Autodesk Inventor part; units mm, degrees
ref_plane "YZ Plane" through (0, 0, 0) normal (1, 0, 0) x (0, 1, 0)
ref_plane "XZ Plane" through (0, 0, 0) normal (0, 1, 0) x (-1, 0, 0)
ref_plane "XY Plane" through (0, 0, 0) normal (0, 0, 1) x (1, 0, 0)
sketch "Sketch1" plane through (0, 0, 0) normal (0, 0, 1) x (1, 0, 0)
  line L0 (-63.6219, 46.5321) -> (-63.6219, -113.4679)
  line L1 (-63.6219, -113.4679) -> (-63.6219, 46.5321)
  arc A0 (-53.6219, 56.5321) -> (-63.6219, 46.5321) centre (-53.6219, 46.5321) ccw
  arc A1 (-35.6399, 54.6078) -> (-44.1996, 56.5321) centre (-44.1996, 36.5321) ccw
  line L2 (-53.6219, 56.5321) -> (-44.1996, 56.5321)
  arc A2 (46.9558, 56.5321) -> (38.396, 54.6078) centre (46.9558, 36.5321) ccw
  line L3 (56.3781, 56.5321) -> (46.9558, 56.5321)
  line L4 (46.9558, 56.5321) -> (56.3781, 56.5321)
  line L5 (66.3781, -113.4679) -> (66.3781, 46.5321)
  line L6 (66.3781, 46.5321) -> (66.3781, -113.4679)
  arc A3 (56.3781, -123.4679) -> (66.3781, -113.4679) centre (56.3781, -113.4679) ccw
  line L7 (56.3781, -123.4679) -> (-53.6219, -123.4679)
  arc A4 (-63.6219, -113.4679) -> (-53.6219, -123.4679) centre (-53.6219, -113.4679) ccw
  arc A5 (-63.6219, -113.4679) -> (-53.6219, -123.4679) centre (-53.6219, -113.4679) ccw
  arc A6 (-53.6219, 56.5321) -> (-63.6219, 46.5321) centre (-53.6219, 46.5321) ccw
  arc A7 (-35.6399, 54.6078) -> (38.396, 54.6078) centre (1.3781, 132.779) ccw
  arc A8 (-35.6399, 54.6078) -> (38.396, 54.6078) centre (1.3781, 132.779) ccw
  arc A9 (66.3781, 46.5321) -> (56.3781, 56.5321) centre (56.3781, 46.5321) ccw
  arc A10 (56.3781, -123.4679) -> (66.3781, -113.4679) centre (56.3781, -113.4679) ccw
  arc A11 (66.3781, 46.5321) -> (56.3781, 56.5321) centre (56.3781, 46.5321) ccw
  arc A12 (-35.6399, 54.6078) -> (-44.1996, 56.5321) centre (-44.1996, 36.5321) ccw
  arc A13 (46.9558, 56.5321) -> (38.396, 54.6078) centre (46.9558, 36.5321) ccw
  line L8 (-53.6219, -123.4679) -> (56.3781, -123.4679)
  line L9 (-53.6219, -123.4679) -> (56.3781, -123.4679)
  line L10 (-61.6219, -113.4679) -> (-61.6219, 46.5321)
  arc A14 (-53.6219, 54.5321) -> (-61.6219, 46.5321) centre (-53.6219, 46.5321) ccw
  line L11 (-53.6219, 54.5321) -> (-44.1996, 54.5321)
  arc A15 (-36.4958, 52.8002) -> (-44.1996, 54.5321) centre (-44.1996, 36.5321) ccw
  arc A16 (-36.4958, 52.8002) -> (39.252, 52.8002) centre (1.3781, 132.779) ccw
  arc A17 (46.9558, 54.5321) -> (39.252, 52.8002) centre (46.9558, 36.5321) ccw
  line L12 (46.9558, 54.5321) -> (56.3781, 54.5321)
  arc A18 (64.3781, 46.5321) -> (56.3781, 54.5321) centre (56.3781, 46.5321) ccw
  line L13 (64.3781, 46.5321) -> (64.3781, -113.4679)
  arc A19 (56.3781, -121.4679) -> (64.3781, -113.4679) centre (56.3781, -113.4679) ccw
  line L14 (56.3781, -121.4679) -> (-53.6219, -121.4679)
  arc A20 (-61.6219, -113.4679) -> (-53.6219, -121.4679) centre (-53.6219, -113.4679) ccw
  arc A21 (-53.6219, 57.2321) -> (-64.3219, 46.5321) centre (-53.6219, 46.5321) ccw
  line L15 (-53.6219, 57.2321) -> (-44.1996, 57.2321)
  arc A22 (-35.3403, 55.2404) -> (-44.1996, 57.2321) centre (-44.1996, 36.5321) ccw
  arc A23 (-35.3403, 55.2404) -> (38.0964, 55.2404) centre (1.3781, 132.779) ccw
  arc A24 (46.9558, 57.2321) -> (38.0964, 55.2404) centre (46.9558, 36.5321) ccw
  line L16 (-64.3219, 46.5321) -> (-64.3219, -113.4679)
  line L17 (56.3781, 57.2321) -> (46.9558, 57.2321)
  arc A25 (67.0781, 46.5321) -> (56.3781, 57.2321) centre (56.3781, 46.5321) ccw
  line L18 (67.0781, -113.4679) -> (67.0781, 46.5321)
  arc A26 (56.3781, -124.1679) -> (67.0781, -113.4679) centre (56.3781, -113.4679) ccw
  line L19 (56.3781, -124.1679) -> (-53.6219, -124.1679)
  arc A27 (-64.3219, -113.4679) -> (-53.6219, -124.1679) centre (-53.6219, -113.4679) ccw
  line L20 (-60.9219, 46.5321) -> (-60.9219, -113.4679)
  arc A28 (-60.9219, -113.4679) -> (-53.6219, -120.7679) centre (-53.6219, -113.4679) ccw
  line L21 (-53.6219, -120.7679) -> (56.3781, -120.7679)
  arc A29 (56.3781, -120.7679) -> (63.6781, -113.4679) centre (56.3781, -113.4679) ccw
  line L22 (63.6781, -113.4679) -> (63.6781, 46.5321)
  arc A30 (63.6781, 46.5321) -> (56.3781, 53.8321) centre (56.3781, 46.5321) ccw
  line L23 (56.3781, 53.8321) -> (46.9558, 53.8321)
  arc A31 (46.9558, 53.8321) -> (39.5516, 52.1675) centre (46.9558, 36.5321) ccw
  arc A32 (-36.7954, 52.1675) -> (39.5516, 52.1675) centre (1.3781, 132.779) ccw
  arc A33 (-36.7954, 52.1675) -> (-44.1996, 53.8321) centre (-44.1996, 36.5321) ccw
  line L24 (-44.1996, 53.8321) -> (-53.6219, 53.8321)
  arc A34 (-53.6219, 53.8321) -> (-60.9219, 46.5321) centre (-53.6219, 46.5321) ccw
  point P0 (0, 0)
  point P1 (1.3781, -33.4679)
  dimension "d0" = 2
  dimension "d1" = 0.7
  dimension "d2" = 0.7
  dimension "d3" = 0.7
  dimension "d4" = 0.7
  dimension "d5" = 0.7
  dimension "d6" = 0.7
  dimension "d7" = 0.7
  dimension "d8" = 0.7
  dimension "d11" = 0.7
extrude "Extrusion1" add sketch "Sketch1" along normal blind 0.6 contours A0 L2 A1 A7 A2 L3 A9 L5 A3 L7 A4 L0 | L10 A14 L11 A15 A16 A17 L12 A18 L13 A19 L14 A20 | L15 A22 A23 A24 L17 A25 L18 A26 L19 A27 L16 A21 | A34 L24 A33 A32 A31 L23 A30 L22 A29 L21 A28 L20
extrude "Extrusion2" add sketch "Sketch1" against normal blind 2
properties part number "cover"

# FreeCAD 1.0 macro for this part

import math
import FreeCAD as App
import Part
import Sketcher
from FreeCAD import Vector
Q = App.Units.Quantity

doc = App.newDocument("Part")
body = doc.addObject("PartDesign::Body", "Body")

sketch1 = doc.addObject("Sketcher::SketchObject", "Sketch")
body.addObject(sketch1)
sketch1.AttachmentSupport = (doc.XY_Plane, [""])
sketch1.MapMode = "FlatFace"
sketch1.addGeometry(Part.LineSegment(Vector(-44, 57, 0), Vector(-54, 57, 0)), False)
sketch1.addGeometry(Part.ArcOfCircle(Part.Circle(Vector(-54, 47, 0), Vector(0, 0, 1), 11), math.radians(90), math.radians(180)), False)
sketch1.addGeometry(Part.LineSegment(Vector(-64, 47, 0), Vector(-64, -113, 0)), False)
sketch1.addGeometry(Part.ArcOfCircle(Part.Circle(Vector(-54, -113, 0), Vector(0, 0, 1), 11), math.radians(180), math.radians(270)), False)
sketch1.addGeometry(Part.LineSegment(Vector(-54, -124, 0), Vector(56, -124, 0)), False)
sketch1.addGeometry(Part.ArcOfCircle(Part.Circle(Vector(56, -113, 0), Vector(0, 0, 1), 11), math.radians(-90), math.radians(0)), False)
sketch1.addGeometry(Part.LineSegment(Vector(67, -113, 0), Vector(67, 47, 0)), False)
sketch1.addGeometry(Part.ArcOfCircle(Part.Circle(Vector(56, 47, 0), Vector(0, 0, 1), 11), math.radians(0), math.radians(90)), False)
sketch1.addGeometry(Part.LineSegment(Vector(56, 57, 0), Vector(47, 57, 0)), False)
sketch1.addGeometry(Part.ArcOfCircle(Part.Circle(Vector(47, 37, 0), Vector(0, 0, 1), 21), math.radians(90), math.radians(115)), False)
sketch1.addGeometry(Part.ArcOfCircle(Part.Circle(Vector(1, 133, 0), Vector(0, 0, 1), 86), math.radians(-115), math.radians(-65)), False)
sketch1.addGeometry(Part.ArcOfCircle(Part.Circle(Vector(-44, 37, 0), Vector(0, 0, 1), 21), math.radians(65), math.radians(90)), False)
sketch1.addConstraint(Sketcher.Constraint("Tangent", 0, 2, 1, 1))
sketch1.addConstraint(Sketcher.Constraint("Tangent", 1, 2, 2, 1))
sketch1.addConstraint(Sketcher.Constraint("Tangent", 2, 2, 3, 1))
sketch1.addConstraint(Sketcher.Constraint("Tangent", 3, 2, 4, 1))
sketch1.addConstraint(Sketcher.Constraint("Tangent", 4, 2, 5, 1))
sketch1.addConstraint(Sketcher.Constraint("Tangent", 5, 2, 6, 1))
sketch1.addConstraint(Sketcher.Constraint("Tangent", 6, 2, 7, 1))
sketch1.addConstraint(Sketcher.Constraint("Tangent", 7, 2, 8, 1))
sketch1.addConstraint(Sketcher.Constraint("Tangent", 8, 2, 9, 1))
sketch1.addConstraint(Sketcher.Constraint("Tangent", 9, 2, 10, 2))
sketch1.addConstraint(Sketcher.Constraint("Tangent", 10, 1, 11, 1))
sketch1.addConstraint(Sketcher.Constraint("Tangent", 11, 2, 0, 1))
sketch1.addConstraint(Sketcher.Constraint("Horizontal", 0))
sketch1.addConstraint(Sketcher.Constraint("Vertical", 2))
sketch1.addConstraint(Sketcher.Constraint("Horizontal", 4))
sketch1.addConstraint(Sketcher.Constraint("Vertical", 6))
sketch1.addConstraint(Sketcher.Constraint("Horizontal", 8))
sketch1.addConstraint(Sketcher.Constraint("Equal", 1, 3))
sketch1.addConstraint(Sketcher.Constraint("Equal", 3, 5))
sketch1.addConstraint(Sketcher.Constraint("Equal", 5, 7))
sketch1.addConstraint(Sketcher.Constraint("Horizontal", 1, 3, 7, 3))
sketch1.addConstraint(Sketcher.Constraint("Horizontal", 9, 2, 10, 1))
sketch1.addConstraint(Sketcher.Constraint("Equal", 0, 8))
sketch1.addConstraint(Sketcher.Constraint("Radius", 1, Q("10.7 mm")))
sketch1.addConstraint(Sketcher.Constraint("Radius", 9, Q("20.7 mm")))
sketch1.addConstraint(Sketcher.Constraint("DistanceX", 4, 1, 4, 2, Q("110 mm")))
sketch1.addConstraint(Sketcher.Constraint("DistanceY", 2, 2, 2, 1, Q("160 mm")))
sketch1.addConstraint(Sketcher.Constraint("DistanceX", 11, 3, -1, 1, Q("44.2 mm")))
sketch1.addConstraint(Sketcher.Constraint("Radius", 10, Q("85.7932 mm")))
sketch1.addConstraint(Sketcher.Constraint("DistanceX", 0, 2, 0, 1, Q("9.4223 mm")))
sketch1.addConstraint(Sketcher.Constraint("DistanceY", -1, 1, 1, 3, Q("46.532 mm")))
pad1 = doc.addObject("PartDesign::Pad", "Pad")
body.addObject(pad1)
pad1.Profile = sketch1
pad1.Length = 0.6

sketch2 = doc.addObject("Sketcher::SketchObject", "Sketch001")
body.addObject(sketch2)
sketch2.AttachmentSupport = (doc.XY_Plane, [""])
sketch2.MapMode = "FlatFace"
sketch2.addGeometry(Part.LineSegment(Vector(-62, 47, 0), Vector(-62, -113, 0)), False)
sketch2.addGeometry(Part.ArcOfCircle(Part.Circle(Vector(-54, -113, 0), Vector(0, 0, 1), 8), math.radians(180), math.radians(270)), False)
sketch2.addGeometry(Part.LineSegment(Vector(-54, -121, 0), Vector(56, -121, 0)), False)
sketch2.addGeometry(Part.ArcOfCircle(Part.Circle(Vector(56, -113, 0), Vector(0, 0, 1), 8), math.radians(-90), math.radians(0)), False)
sketch2.addGeometry(Part.LineSegment(Vector(64, -113, 0), Vector(64, 47, 0)), False)
sketch2.addGeometry(Part.ArcOfCircle(Part.Circle(Vector(56, 47, 0), Vector(0, 0, 1), 8), math.radians(0), math.radians(90)), False)
sketch2.addGeometry(Part.LineSegment(Vector(56, 55, 0), Vector(47, 55, 0)), False)
sketch2.addGeometry(Part.ArcOfCircle(Part.Circle(Vector(47, 37, 0), Vector(0, 0, 1), 18), math.radians(90), math.radians(115)), False)
sketch2.addGeometry(Part.ArcOfCircle(Part.Circle(Vector(1, 133, 0), Vector(0, 0, 1), 88), math.radians(-115), math.radians(-65)), False)
sketch2.addGeometry(Part.ArcOfCircle(Part.Circle(Vector(-44, 37, 0), Vector(0, 0, 1), 18), math.radians(65), math.radians(90)), False)
sketch2.addGeometry(Part.LineSegment(Vector(-44, 55, 0), Vector(-54, 55, 0)), False)
sketch2.addGeometry(Part.ArcOfCircle(Part.Circle(Vector(-54, 47, 0), Vector(0, 0, 1), 8), math.radians(90), math.radians(180)), False)
sketch2.addGeometry(Part.LineSegment(Vector(-61, -113, 0), Vector(-61, 47, 0)), False)
sketch2.addGeometry(Part.ArcOfCircle(Part.Circle(Vector(-54, 47, 0), Vector(0, 0, 1), 7), math.radians(90), math.radians(180)), False)
sketch2.addGeometry(Part.LineSegment(Vector(-54, 54, 0), Vector(-44, 54, 0)), False)
sketch2.addGeometry(Part.ArcOfCircle(Part.Circle(Vector(-44, 37, 0), Vector(0, 0, 1), 17), math.radians(65), math.radians(90)), False)
sketch2.addGeometry(Part.ArcOfCircle(Part.Circle(Vector(1, 133, 0), Vector(0, 0, 1), 89), math.radians(-115), math.radians(-65)), False)
sketch2.addGeometry(Part.ArcOfCircle(Part.Circle(Vector(47, 37, 0), Vector(0, 0, 1), 17), math.radians(90), math.radians(115)), False)
sketch2.addGeometry(Part.LineSegment(Vector(47, 54, 0), Vector(56, 54, 0)), False)
sketch2.addGeometry(Part.ArcOfCircle(Part.Circle(Vector(56, 47, 0), Vector(0, 0, 1), 7), math.radians(0), math.radians(90)), False)
sketch2.addGeometry(Part.LineSegment(Vector(64, 47, 0), Vector(64, -113, 0)), False)
sketch2.addGeometry(Part.ArcOfCircle(Part.Circle(Vector(56, -113, 0), Vector(0, 0, 1), 7), math.radians(-90), math.radians(0)), False)
sketch2.addGeometry(Part.LineSegment(Vector(56, -121, 0), Vector(-54, -121, 0)), False)
sketch2.addGeometry(Part.ArcOfCircle(Part.Circle(Vector(-54, -113, 0), Vector(0, 0, 1), 7), math.radians(180), math.radians(270)), False)
sketch2.addGeometry(Part.LineSegment(Vector(-44, 57, 0), Vector(-54, 57, 0)), False)
sketch2.addGeometry(Part.ArcOfCircle(Part.Circle(Vector(-54, 47, 0), Vector(0, 0, 1), 11), math.radians(90), math.radians(180)), False)
sketch2.addGeometry(Part.LineSegment(Vector(-64, 47, 0), Vector(-64, -113, 0)), False)
sketch2.addGeometry(Part.ArcOfCircle(Part.Circle(Vector(-54, -113, 0), Vector(0, 0, 1), 11), math.radians(180), math.radians(270)), False)
sketch2.addGeometry(Part.LineSegment(Vector(-54, -124, 0), Vector(56, -124, 0)), False)
sketch2.addGeometry(Part.ArcOfCircle(Part.Circle(Vector(56, -113, 0), Vector(0, 0, 1), 11), math.radians(-90), math.radians(0)), False)
sketch2.addGeometry(Part.LineSegment(Vector(67, -113, 0), Vector(67, 47, 0)), False)
sketch2.addGeometry(Part.ArcOfCircle(Part.Circle(Vector(56, 47, 0), Vector(0, 0, 1), 11), math.radians(0), math.radians(90)), False)
sketch2.addGeometry(Part.LineSegment(Vector(56, 57, 0), Vector(47, 57, 0)), False)
sketch2.addGeometry(Part.ArcOfCircle(Part.Circle(Vector(47, 37, 0), Vector(0, 0, 1), 21), math.radians(90), math.radians(115)), False)
sketch2.addGeometry(Part.ArcOfCircle(Part.Circle(Vector(1, 133, 0), Vector(0, 0, 1), 86), math.radians(-115), math.radians(-65)), False)
sketch2.addGeometry(Part.ArcOfCircle(Part.Circle(Vector(-44, 37, 0), Vector(0, 0, 1), 21), math.radians(65), math.radians(90)), False)
sketch2.addGeometry(Part.LineSegment(Vector(-64, -113, 0), Vector(-64, 47, 0)), False)
sketch2.addGeometry(Part.ArcOfCircle(Part.Circle(Vector(-54, 47, 0), Vector(0, 0, 1), 10), math.radians(90), math.radians(180)), False)
sketch2.addGeometry(Part.LineSegment(Vector(-54, 57, 0), Vector(-44, 57, 0)), False)
sketch2.addGeometry(Part.ArcOfCircle(Part.Circle(Vector(-44, 37, 0), Vector(0, 0, 1), 20), math.radians(65), math.radians(90)), False)
sketch2.addGeometry(Part.ArcOfCircle(Part.Circle(Vector(1, 133, 0), Vector(0, 0, 1), 86), math.radians(-115), math.radians(-65)), False)
sketch2.addGeometry(Part.ArcOfCircle(Part.Circle(Vector(47, 37, 0), Vector(0, 0, 1), 20), math.radians(90), math.radians(115)), False)
sketch2.addGeometry(Part.LineSegment(Vector(47, 57, 0), Vector(56, 57, 0)), False)
sketch2.addGeometry(Part.ArcOfCircle(Part.Circle(Vector(56, 47, 0), Vector(0, 0, 1), 10), math.radians(0), math.radians(90)), False)
sketch2.addGeometry(Part.LineSegment(Vector(66, 47, 0), Vector(66, -113, 0)), False)
sketch2.addGeometry(Part.ArcOfCircle(Part.Circle(Vector(56, -113, 0), Vector(0, 0, 1), 10), math.radians(-90), math.radians(0)), False)
sketch2.addGeometry(Part.LineSegment(Vector(56, -123, 0), Vector(-54, -123, 0)), False)
sketch2.addGeometry(Part.ArcOfCircle(Part.Circle(Vector(-54, -113, 0), Vector(0, 0, 1), 10), math.radians(180), math.radians(270)), False)
sketch2.addConstraint(Sketcher.Constraint("Tangent", 0, 2, 1, 1))
sketch2.addConstraint(Sketcher.Constraint("Tangent", 1, 2, 2, 1))
sketch2.addConstraint(Sketcher.Constraint("Tangent", 2, 2, 3, 1))
sketch2.addConstraint(Sketcher.Constraint("Tangent", 3, 2, 4, 1))
sketch2.addConstraint(Sketcher.Constraint("Tangent", 4, 2, 5, 1))
sketch2.addConstraint(Sketcher.Constraint("Tangent", 5, 2, 6, 1))
sketch2.addConstraint(Sketcher.Constraint("Tangent", 6, 2, 7, 1))
sketch2.addConstraint(Sketcher.Constraint("Tangent", 7, 2, 8, 2))
sketch2.addConstraint(Sketcher.Constraint("Tangent", 8, 1, 9, 1))
sketch2.addConstraint(Sketcher.Constraint("Tangent", 9, 2, 10, 1))
sketch2.addConstraint(Sketcher.Constraint("Tangent", 10, 2, 11, 1))
sketch2.addConstraint(Sketcher.Constraint("Tangent", 11, 2, 0, 1))
sketch2.addConstraint(Sketcher.Constraint("Tangent", 12, 2, 13, 2))
sketch2.addConstraint(Sketcher.Constraint("Tangent", 13, 1, 14, 1))
sketch2.addConstraint(Sketcher.Constraint("Tangent", 14, 2, 15, 2))
sketch2.addConstraint(Sketcher.Constraint("Tangent", 15, 1, 16, 1))
sketch2.addConstraint(Sketcher.Constraint("Tangent", 16, 2, 17, 2))
sketch2.addConstraint(Sketcher.Constraint("Tangent", 17, 1, 18, 1))
sketch2.addConstraint(Sketcher.Constraint("Tangent", 18, 2, 19, 2))
sketch2.addConstraint(Sketcher.Constraint("Tangent", 19, 1, 20, 1))
sketch2.addConstraint(Sketcher.Constraint("Tangent", 20, 2, 21, 2))
sketch2.addConstraint(Sketcher.Constraint("Tangent", 21, 1, 22, 1))
sketch2.addConstraint(Sketcher.Constraint("Tangent", 22, 2, 23, 2))
sketch2.addConstraint(Sketcher.Constraint("Tangent", 23, 1, 12, 1))
sketch2.addConstraint(Sketcher.Constraint("Tangent", 24, 2, 25, 1))
sketch2.addConstraint(Sketcher.Constraint("Tangent", 25, 2, 26, 1))
sketch2.addConstraint(Sketcher.Constraint("Tangent", 26, 2, 27, 1))
sketch2.addConstraint(Sketcher.Constraint("Tangent", 27, 2, 28, 1))
sketch2.addConstraint(Sketcher.Constraint("Tangent", 28, 2, 29, 1))
sketch2.addConstraint(Sketcher.Constraint("Tangent", 29, 2, 30, 1))
sketch2.addConstraint(Sketcher.Constraint("Tangent", 30, 2, 31, 1))
sketch2.addConstraint(Sketcher.Constraint("Tangent", 31, 2, 32, 1))
sketch2.addConstraint(Sketcher.Constraint("Tangent", 32, 2, 33, 1))
sketch2.addConstraint(Sketcher.Constraint("Tangent", 33, 2, 34, 2))
sketch2.addConstraint(Sketcher.Constraint("Tangent", 34, 1, 35, 1))
sketch2.addConstraint(Sketcher.Constraint("Tangent", 35, 2, 24, 1))
sketch2.addConstraint(Sketcher.Constraint("Tangent", 36, 2, 37, 2))
sketch2.addConstraint(Sketcher.Constraint("Tangent", 37, 1, 38, 1))
sketch2.addConstraint(Sketcher.Constraint("Tangent", 38, 2, 39, 2))
sketch2.addConstraint(Sketcher.Constraint("Tangent", 39, 1, 40, 1))
sketch2.addConstraint(Sketcher.Constraint("Tangent", 40, 2, 41, 2))
sketch2.addConstraint(Sketcher.Constraint("Tangent", 41, 1, 42, 1))
sketch2.addConstraint(Sketcher.Constraint("Tangent", 42, 2, 43, 2))
sketch2.addConstraint(Sketcher.Constraint("Tangent", 43, 1, 44, 1))
sketch2.addConstraint(Sketcher.Constraint("Tangent", 44, 2, 45, 2))
sketch2.addConstraint(Sketcher.Constraint("Tangent", 45, 1, 46, 1))
sketch2.addConstraint(Sketcher.Constraint("Tangent", 46, 2, 47, 2))
sketch2.addConstraint(Sketcher.Constraint("Tangent", 47, 1, 36, 1))
sketch2.addConstraint(Sketcher.Constraint("Vertical", 0))
sketch2.addConstraint(Sketcher.Constraint("Horizontal", 2))
sketch2.addConstraint(Sketcher.Constraint("Vertical", 4))
sketch2.addConstraint(Sketcher.Constraint("Horizontal", 6))
sketch2.addConstraint(Sketcher.Constraint("Horizontal", 10))
sketch2.addConstraint(Sketcher.Constraint("Vertical", 12))
sketch2.addConstraint(Sketcher.Constraint("Horizontal", 14))
sketch2.addConstraint(Sketcher.Constraint("Horizontal", 18))
sketch2.addConstraint(Sketcher.Constraint("Vertical", 20))
sketch2.addConstraint(Sketcher.Constraint("Horizontal", 22))
sketch2.addConstraint(Sketcher.Constraint("Horizontal", 24))
sketch2.addConstraint(Sketcher.Constraint("Vertical", 26))
sketch2.addConstraint(Sketcher.Constraint("Horizontal", 28))
sketch2.addConstraint(Sketcher.Constraint("Vertical", 30))
sketch2.addConstraint(Sketcher.Constraint("Horizontal", 32))
sketch2.addConstraint(Sketcher.Constraint("Vertical", 36))
sketch2.addConstraint(Sketcher.Constraint("Horizontal", 38))
sketch2.addConstraint(Sketcher.Constraint("Horizontal", 42))
sketch2.addConstraint(Sketcher.Constraint("Vertical", 44))
sketch2.addConstraint(Sketcher.Constraint("Horizontal", 46))
sketch2.addConstraint(Sketcher.Constraint("Coincident", 13, 3, 11, 3))
sketch2.addConstraint(Sketcher.Constraint("Coincident", 16, 3, 8, 3))
sketch2.addConstraint(Sketcher.Constraint("Coincident", 19, 3, 5, 3))
sketch2.addConstraint(Sketcher.Constraint("Coincident", 21, 3, 3, 3))
sketch2.addConstraint(Sketcher.Constraint("Coincident", 23, 3, 1, 3))
sketch2.addConstraint(Sketcher.Constraint("Coincident", 25, 3, 11, 3))
sketch2.addConstraint(Sketcher.Constraint("Coincident", 27, 3, 1, 3))
sketch2.addConstraint(Sketcher.Constraint("Coincident", 29, 3, 3, 3))
sketch2.addConstraint(Sketcher.Constraint("Coincident", 31, 3, 5, 3))
sketch2.addConstraint(Sketcher.Constraint("Coincident", 33, 3, 7, 3))
sketch2.addConstraint(Sketcher.Constraint("Coincident", 34, 3, 8, 3))
sketch2.addConstraint(Sketcher.Constraint("Coincident", 35, 3, 15, 3))
sketch2.addConstraint(Sketcher.Constraint("Coincident", 37, 3, 11, 3))
sketch2.addConstraint(Sketcher.Constraint("Coincident", 39, 3, 9, 3))
sketch2.addConstraint(Sketcher.Constraint("Coincident", 40, 3, 8, 3))
sketch2.addConstraint(Sketcher.Constraint("Coincident", 41, 3, 7, 3))
sketch2.addConstraint(Sketcher.Constraint("Coincident", 43, 3, 5, 3))
sketch2.addConstraint(Sketcher.Constraint("Coincident", 45, 3, 3, 3))
sketch2.addConstraint(Sketcher.Constraint("Equal", 1, 3))
sketch2.addConstraint(Sketcher.Constraint("Equal", 3, 5))
sketch2.addConstraint(Sketcher.Constraint("Equal", 7, 9))
sketch2.addConstraint(Sketcher.Constraint("Equal", 5, 11))
sketch2.addConstraint(Sketcher.Constraint("Equal", 45, 47))
sketch2.addConstraint(Sketcher.Constraint("Horizontal", 7, 3, 9, 3))
sketch2.addConstraint(Sketcher.Constraint("Vertical", 7, 3, 17, 3))
sketch2.addConstraint(Sketcher.Constraint("Vertical", 9, 2, 14, 2))
sketch2.addConstraint(Sketcher.Constraint("Equal", 6, 10))
sketch2.addConstraint(Sketcher.Constraint("Radius", 1, Q("8 mm")))
sketch2.addConstraint(Sketcher.Constraint("Radius", 7, Q("18 mm")))
sketch2.addConstraint(Sketcher.Constraint("Radius", 37, Q("10 mm")))
sketch2.addConstraint(Sketcher.Constraint("Radius", 13, Q("7.3 mm")))
sketch2.addConstraint(Sketcher.Constraint("Radius", 25, Q("10.7 mm")))
sketch2.addConstraint(Sketcher.Constraint("DistanceX", 2, 1, 2, 2, Q("110 mm")))
sketch2.addConstraint(Sketcher.Constraint("DistanceY", 0, 2, 0, 1, Q("160 mm")))
sketch2.addConstraint(Sketcher.Constraint("DistanceX", 15, 3, -1, 1, Q("44.2 mm")))
sketch2.addConstraint(Sketcher.Constraint("Radius", 8, Q("88.4932 mm")))
sketch2.addConstraint(Sketcher.Constraint("DistanceX", 6, 2, 6, 1, Q("9.4223 mm")))
sketch2.addConstraint(Sketcher.Constraint("DistanceY", 1, 3, -1, 1, Q("113.468 mm")))
pad2 = doc.addObject("PartDesign::Pad", "Pad001")
body.addObject(pad2)
pad2.Profile = sketch2
pad2.Length = 2
pad2.Reversed = True

doc.recompute()
